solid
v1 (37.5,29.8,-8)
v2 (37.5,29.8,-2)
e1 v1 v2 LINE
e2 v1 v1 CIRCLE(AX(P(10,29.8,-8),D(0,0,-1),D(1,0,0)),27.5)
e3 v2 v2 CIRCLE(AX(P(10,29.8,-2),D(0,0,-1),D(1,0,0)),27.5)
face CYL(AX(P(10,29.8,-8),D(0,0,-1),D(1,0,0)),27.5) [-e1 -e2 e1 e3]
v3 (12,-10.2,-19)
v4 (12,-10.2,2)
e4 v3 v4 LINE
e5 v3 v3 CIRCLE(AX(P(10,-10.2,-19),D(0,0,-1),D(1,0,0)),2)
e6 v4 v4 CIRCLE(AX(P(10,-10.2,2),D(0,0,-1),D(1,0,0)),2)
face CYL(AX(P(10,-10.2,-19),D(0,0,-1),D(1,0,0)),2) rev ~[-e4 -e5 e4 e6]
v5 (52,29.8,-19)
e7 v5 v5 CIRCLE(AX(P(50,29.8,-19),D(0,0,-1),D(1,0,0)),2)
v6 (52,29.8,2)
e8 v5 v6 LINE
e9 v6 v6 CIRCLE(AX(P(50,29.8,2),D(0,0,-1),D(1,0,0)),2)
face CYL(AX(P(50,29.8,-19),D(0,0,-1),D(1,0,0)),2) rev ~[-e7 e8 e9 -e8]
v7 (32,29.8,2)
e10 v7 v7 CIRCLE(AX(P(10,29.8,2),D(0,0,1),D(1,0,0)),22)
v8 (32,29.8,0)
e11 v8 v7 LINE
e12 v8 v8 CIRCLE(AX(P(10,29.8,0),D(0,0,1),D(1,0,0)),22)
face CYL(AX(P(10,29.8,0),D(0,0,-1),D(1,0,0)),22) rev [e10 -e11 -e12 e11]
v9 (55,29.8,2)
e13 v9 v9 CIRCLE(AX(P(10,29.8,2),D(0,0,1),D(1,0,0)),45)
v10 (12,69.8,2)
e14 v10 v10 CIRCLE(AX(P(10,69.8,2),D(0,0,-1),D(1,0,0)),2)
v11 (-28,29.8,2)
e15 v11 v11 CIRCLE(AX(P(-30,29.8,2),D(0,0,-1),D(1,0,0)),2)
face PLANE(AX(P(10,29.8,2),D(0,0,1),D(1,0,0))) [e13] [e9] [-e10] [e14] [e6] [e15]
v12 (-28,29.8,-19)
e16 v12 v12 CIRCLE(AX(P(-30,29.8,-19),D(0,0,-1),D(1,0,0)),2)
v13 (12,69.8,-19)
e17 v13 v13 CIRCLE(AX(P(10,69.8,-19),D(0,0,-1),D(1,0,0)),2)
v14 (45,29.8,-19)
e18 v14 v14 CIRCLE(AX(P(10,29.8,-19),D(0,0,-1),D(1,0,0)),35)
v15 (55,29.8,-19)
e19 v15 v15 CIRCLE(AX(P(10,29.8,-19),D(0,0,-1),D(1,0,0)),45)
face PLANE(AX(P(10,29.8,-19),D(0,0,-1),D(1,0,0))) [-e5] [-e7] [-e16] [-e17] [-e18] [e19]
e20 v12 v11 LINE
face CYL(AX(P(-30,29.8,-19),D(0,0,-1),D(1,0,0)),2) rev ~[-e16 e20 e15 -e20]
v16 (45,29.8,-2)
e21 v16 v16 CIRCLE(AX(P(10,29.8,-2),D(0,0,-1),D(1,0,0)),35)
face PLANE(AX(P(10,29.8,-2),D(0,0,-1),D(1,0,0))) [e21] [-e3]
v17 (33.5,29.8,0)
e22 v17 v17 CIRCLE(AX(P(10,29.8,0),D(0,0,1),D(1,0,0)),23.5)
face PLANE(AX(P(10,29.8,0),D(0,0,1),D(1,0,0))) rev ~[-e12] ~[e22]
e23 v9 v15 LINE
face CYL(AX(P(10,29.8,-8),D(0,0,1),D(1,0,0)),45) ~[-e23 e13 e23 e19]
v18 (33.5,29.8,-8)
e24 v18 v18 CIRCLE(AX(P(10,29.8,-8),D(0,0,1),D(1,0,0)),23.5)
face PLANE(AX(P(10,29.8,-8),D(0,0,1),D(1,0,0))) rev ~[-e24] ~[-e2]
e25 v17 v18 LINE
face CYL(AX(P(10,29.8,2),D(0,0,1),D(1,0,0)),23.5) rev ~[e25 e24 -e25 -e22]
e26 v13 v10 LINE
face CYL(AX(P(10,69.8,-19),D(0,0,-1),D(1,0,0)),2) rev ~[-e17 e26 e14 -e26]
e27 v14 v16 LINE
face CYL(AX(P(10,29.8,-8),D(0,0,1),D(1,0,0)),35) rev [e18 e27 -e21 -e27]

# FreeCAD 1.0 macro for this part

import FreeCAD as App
import Part
import Sketcher
Q = App.Units.Quantity

doc = App.newDocument("Part")
body = doc.addObject("PartDesign::Body", "Body")

sketch1 = body.newObject("Sketcher::SketchObject", "Sketch")
sketch1.AttachmentSupport = (doc.getObject("XY_Plane"), [""])
sketch1.MapMode = "FlatFace"
sketch1.addGeometry(Part.Circle(App.Vector(10, 29.8, 0), App.Vector(0, 0, 1), 23.5), False)
sketch1.addGeometry(Part.Circle(App.Vector(10, 29.8, 0), App.Vector(0, 0, 1), 22), False)
sketch1.addConstraint(Sketcher.Constraint("Coincident", 1, 3, 0, 3))
sketch1.addConstraint(Sketcher.Constraint("Diameter", 0, Q("47 mm")))
sketch1.addConstraint(Sketcher.Constraint("Diameter", 1, Q("44 mm")))
sketch1.addConstraint(Sketcher.Constraint("DistanceX", -1, 1, 0, 3, Q("10 mm")))
sketch1.addConstraint(Sketcher.Constraint("DistanceY", -1, 1, 0, 3, Q("29.8 mm")))
pad1 = body.newObject("PartDesign::Pad", "Pad")
pad1.Profile = sketch1
pad1.Length = 2

sketch2 = body.newObject("Sketcher::SketchObject", "Sketch001")
sketch2.AttachmentSupport = (doc.getObject("XY_Plane"), [""])
sketch2.MapMode = "FlatFace"
sketch2.AttachmentOffset = App.Placement(App.Vector(0, 0, 2), App.Rotation())
sketch2.addGeometry(Part.Circle(App.Vector(10, 29.8, 0), App.Vector(0, 0, 1), 45), False)
sketch2.addGeometry(Part.Circle(App.Vector(10, 29.8, 0), App.Vector(0, 0, 1), 23.5), False)
sketch2.addConstraint(Sketcher.Constraint("Coincident", 1, 3, 0, 3))
sketch2.addConstraint(Sketcher.Constraint("Diameter", 0, Q("90 mm")))
sketch2.addConstraint(Sketcher.Constraint("Diameter", 1, Q("47 mm")))
sketch2.addConstraint(Sketcher.Constraint("DistanceX", -1, 1, 0, 3, Q("10 mm")))
sketch2.addConstraint(Sketcher.Constraint("DistanceY", -1, 1, 0, 3, Q("29.8 mm")))
pad2 = body.newObject("PartDesign::Pad", "Pad001")
pad2.Profile = sketch2
pad2.Length = 10
pad2.Reversed = True

sketch3 = body.newObject("Sketcher::SketchObject", "Sketch002")
sketch3.AttachmentSupport = (doc.getObject("XY_Plane"), [""])
sketch3.MapMode = "FlatFace"
sketch3.AttachmentOffset = App.Placement(App.Vector(0, 0, -8), App.Rotation())
sketch3.addGeometry(Part.Circle(App.Vector(10, 29.8, 0), App.Vector(0, 0, 1), 35), False)
sketch3.addGeometry(Part.Circle(App.Vector(10, 29.8, 0), App.Vector(0, 0, 1), 27.5), False)
sketch3.addConstraint(Sketcher.Constraint("Coincident", 1, 3, 0, 3))
sketch3.addConstraint(Sketcher.Constraint("Diameter", 0, Q("70 mm")))
sketch3.addConstraint(Sketcher.Constraint("Diameter", 1, Q("55 mm")))
sketch3.addConstraint(Sketcher.Constraint("DistanceX", -1, 1, 0, 3, Q("10 mm")))
sketch3.addConstraint(Sketcher.Constraint("DistanceY", -1, 1, 0, 3, Q("29.8 mm")))
pocket1 = body.newObject("PartDesign::Pocket", "Pocket")
pocket1.Profile = sketch3
pocket1.Length = 6
pocket1.Reversed = True

sketch4 = body.newObject("Sketcher::SketchObject", "Sketch003")
sketch4.AttachmentSupport = (doc.getObject("XY_Plane"), [""])
sketch4.MapMode = "FlatFace"
sketch4.AttachmentOffset = App.Placement(App.Vector(0, 0, -8), App.Rotation())
sketch4.addGeometry(Part.Circle(App.Vector(10, 29.8, 0), App.Vector(0, 0, 1), 45), False)
sketch4.addGeometry(Part.Circle(App.Vector(10, 29.8, 0), App.Vector(0, 0, 1), 35), False)
sketch4.addConstraint(Sketcher.Constraint("Coincident", 1, 3, 0, 3))
sketch4.addConstraint(Sketcher.Constraint("Diameter", 0, Q("90 mm")))
sketch4.addConstraint(Sketcher.Constraint("Diameter", 1, Q("70 mm")))
sketch4.addConstraint(Sketcher.Constraint("DistanceX", -1, 1, 0, 3, Q("10 mm")))
sketch4.addConstraint(Sketcher.Constraint("DistanceY", -1, 1, 0, 3, Q("29.8 mm")))
pad3 = body.newObject("PartDesign::Pad", "Pad002")
pad3.Profile = sketch4
pad3.Length = 11
pad3.Reversed = True

sketch5 = body.newObject("Sketcher::SketchObject", "Sketch004")
sketch5.AttachmentSupport = (doc.getObject("XY_Plane"), [""])
sketch5.MapMode = "FlatFace"
sketch5.AttachmentOffset = App.Placement(App.Vector(0, 0, -19), App.Rotation())
sketch5.addGeometry(Part.Circle(App.Vector(10, -10.2, 0), App.Vector(0, 0, 1), 2), False)
sketch5.addGeometry(Part.Circle(App.Vector(-30, 29.8, 0), App.Vector(0, 0, 1), 2), False)
sketch5.addGeometry(Part.Circle(App.Vector(10, 69.8, 0), App.Vector(0, 0, 1), 2), False)
sketch5.addGeometry(Part.Circle(App.Vector(50, 29.8, 0), App.Vector(0, 0, 1), 2), False)
sketch5.addConstraint(Sketcher.Constraint("Equal", 0, 1))
sketch5.addConstraint(Sketcher.Constraint("Equal", 1, 2))
sketch5.addConstraint(Sketcher.Constraint("Equal", 2, 3))
sketch5.addConstraint(Sketcher.Constraint("Horizontal", 1, 3, 3, 3))
sketch5.addConstraint(Sketcher.Constraint("Vertical", 0, 3, 2, 3))
sketch5.addConstraint(Sketcher.Constraint("Diameter", 0, Q("4 mm")))
sketch5.addConstraint(Sketcher.Constraint("DistanceX", -1, 1, 0, 3, Q("10 mm")))
sketch5.addConstraint(Sketcher.Constraint("DistanceX", 1, 3, -1, 1, Q("30 mm")))
sketch5.addConstraint(Sketcher.Constraint("DistanceX", -1, 1, 3, 3, Q("50 mm")))
sketch5.addConstraint(Sketcher.Constraint("DistanceY", 0, 3, 1, 3, Q("40 mm")))
sketch5.addConstraint(Sketcher.Constraint("DistanceY", 1, 3, 2, 3, Q("40 mm")))
sketch5.addConstraint(Sketcher.Constraint("DistanceY", 0, 3, -1, 1, Q("10.2 mm")))
pocket2 = body.newObject("PartDesign::Pocket", "Pocket001")
pocket2.Profile = sketch5
pocket2.Type = "ThroughAll"
pocket2.Reversed = True

doc.recompute()
